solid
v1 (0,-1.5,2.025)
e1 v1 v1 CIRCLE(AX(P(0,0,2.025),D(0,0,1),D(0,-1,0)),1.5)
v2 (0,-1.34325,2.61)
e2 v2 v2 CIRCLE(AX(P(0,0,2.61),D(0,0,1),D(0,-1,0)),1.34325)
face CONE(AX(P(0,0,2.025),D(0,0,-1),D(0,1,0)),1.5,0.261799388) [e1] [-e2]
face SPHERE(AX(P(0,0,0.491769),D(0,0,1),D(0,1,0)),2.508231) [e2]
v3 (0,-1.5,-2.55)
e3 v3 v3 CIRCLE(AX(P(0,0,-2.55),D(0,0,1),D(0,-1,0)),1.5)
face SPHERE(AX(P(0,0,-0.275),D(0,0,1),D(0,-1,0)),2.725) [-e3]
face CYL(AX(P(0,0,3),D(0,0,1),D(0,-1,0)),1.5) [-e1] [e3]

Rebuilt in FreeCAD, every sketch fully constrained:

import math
import FreeCAD as App
import Part
import Sketcher
from FreeCAD import Vector
Q = App.Units.Quantity

doc = App.newDocument("Part")
body = doc.addObject("PartDesign::Body", "Body")

# Sketch on YZ plane
sketch1 = body.newObject("Sketcher::SketchObject", "Sketch")
sketch1.AttachmentSupport = (doc.getObject("YZ_Plane"), [""])
sketch1.MapMode = "FlatFace"
sketch1.addGeometry(Part.LineSegment(Vector(0, 3, 0), Vector(0, -3, 0)), False)
sketch1.addGeometry(Part.ArcOfCircle(Part.Circle(Vector(0, -0.3, 0), Vector(0, 0, 1), 2.7), math.radians(-90), math.radians(-57)), False)
sketch1.addGeometry(Part.LineSegment(Vector(1.5, -2.5, 0), Vector(1.5, 2, 0)), False)
sketch1.addGeometry(Part.LineSegment(Vector(1.5, 2, 0), Vector(1.3, 2.6, 0)), False)
sketch1.addGeometry(Part.ArcOfCircle(Part.Circle(Vector(0, 0.5, 0), Vector(0, 0, 1), 2.5), math.radians(58), math.radians(90)), False)
sketch1.addConstraint(Sketcher.Constraint("Coincident", 0, 2, 1, 1))
sketch1.addConstraint(Sketcher.Constraint("Coincident", 1, 2, 2, 1))
sketch1.addConstraint(Sketcher.Constraint("Coincident", 2, 2, 3, 1))
sketch1.addConstraint(Sketcher.Constraint("Coincident", 3, 2, 4, 1))
sketch1.addConstraint(Sketcher.Constraint("Coincident", 4, 2, 0, 1))
sketch1.addConstraint(Sketcher.Constraint("Vertical", 0))
sketch1.addConstraint(Sketcher.Constraint("Vertical", 2))
sketch1.addConstraint(Sketcher.Constraint("Symmetric", 0, 2, 4, 2, -1, 1))
sketch1.addConstraint(Sketcher.Constraint("PointOnObject", 1, 3, -2))
sketch1.addConstraint(Sketcher.Constraint("PointOnObject", 4, 3, -2))
sketch1.addConstraint(Sketcher.Constraint("DistanceY", 0, 2, 0, 1, 6.0))
sketch1.addConstraint(Sketcher.Constraint("Angle", 3, Q("105 deg")))
sketch1.addConstraint(Sketcher.Constraint("Radius", 1, 2.725))
sketch1.addConstraint(Sketcher.Constraint("DistanceX", -1, 1, 1, 2, 1.5))
sketch1.addConstraint(Sketcher.Constraint("DistanceY", 1, 3, 2, 2, 2.3))
sketch1.addConstraint(Sketcher.Constraint("DistanceY", -1, 1, 3, 2, 2.61))
revolution = body.newObject("PartDesign::Revolution", "Revolution")
revolution.Profile = sketch1
revolution.ReferenceAxis = (sketch1, ["V_Axis"])
revolution.Angle = 360

doc.recompute()
